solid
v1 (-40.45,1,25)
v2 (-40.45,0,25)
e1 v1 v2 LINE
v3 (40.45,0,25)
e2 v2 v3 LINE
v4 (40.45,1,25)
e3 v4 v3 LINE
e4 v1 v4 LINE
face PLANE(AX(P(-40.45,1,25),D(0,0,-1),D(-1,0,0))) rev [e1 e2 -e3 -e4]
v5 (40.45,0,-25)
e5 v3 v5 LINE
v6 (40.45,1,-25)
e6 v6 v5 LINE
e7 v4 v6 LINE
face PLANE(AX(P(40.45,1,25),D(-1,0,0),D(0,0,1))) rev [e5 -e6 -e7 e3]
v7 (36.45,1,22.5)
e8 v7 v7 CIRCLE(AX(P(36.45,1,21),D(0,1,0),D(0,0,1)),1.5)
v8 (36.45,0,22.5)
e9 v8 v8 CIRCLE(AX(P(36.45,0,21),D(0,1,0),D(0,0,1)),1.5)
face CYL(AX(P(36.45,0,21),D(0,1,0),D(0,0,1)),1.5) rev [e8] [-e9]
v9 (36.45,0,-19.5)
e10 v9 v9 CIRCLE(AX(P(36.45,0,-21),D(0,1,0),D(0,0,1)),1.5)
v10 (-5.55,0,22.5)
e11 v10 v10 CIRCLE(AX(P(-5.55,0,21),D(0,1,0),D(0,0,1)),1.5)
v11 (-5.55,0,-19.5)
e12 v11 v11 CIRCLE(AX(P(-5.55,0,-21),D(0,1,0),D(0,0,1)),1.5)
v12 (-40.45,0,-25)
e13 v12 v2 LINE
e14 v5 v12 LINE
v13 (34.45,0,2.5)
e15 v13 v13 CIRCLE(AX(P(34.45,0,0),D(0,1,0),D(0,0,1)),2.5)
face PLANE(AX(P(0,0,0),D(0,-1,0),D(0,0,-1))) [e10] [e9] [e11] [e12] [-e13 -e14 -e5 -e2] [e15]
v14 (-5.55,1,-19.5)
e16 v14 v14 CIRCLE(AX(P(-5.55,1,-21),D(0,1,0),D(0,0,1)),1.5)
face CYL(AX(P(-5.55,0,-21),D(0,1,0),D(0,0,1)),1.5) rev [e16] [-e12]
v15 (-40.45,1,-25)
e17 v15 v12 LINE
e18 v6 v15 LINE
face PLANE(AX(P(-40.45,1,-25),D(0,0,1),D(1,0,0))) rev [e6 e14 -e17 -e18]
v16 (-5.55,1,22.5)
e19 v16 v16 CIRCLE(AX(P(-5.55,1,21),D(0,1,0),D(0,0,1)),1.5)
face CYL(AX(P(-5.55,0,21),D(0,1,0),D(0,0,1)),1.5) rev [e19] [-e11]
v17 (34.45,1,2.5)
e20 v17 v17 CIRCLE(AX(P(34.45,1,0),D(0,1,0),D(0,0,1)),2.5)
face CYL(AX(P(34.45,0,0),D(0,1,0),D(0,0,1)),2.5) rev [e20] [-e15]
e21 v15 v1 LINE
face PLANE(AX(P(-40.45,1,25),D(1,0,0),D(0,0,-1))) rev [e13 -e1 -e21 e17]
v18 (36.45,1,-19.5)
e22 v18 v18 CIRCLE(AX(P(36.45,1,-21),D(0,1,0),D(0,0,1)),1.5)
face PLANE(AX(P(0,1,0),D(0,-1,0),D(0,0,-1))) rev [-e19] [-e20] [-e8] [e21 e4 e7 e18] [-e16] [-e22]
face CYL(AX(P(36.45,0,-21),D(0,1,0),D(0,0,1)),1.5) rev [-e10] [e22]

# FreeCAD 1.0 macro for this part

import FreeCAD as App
import Part
import Sketcher
from FreeCAD import Vector
Q = App.Units.Quantity


def add_polygon(sketch, points):
    """Adds a closed chain of lines whose ends are joined by coincident constraints."""
    first, n = sketch.GeometryCount, len(points)
    for a, b in zip(points, points[1:] + points[:1]):
        sketch.addGeometry(Part.LineSegment(App.Vector(*a, 0), App.Vector(*b, 0)), False)
    for i in range(n):
        sketch.addConstraint(Sketcher.Constraint("Coincident", first + i, 2, first + (i + 1) % n, 1))

doc = App.newDocument("Part")
body = doc.addObject("PartDesign::Body", "Body")

# Sketch on XZ plane
sketch1 = body.newObject("Sketcher::SketchObject", "Sketch")
sketch1.AttachmentSupport = (doc.getObject("XZ_Plane"), [""])
sketch1.MapMode = "FlatFace"
add_polygon(sketch1, [(-40, -25), (-40, 25), (40, 25), (40, -25)])  # lines 0-3
sketch1.addConstraint([
    Sketcher.Constraint("Vertical", 0),
    Sketcher.Constraint("Horizontal", 1),
    Sketcher.Constraint("Vertical", 2),
    Sketcher.Constraint("Horizontal", 3),
    Sketcher.Constraint("Symmetric", 0, 2, 2, 2, -1, 1),
    Sketcher.Constraint("DistanceY", 0, 1, 0, 2, Q("50 mm")),
    Sketcher.Constraint("DistanceX", 1, 1, 1, 2, Q("80.9 mm")),
])
pad1 = body.newObject("PartDesign::Pad", "Pad")
pad1.Profile = sketch1
pad1.Length = 1
pad1.Reversed = True

# Sketch on XZ plane
sketch2 = body.newObject("Sketcher::SketchObject", "Sketch001")
sketch2.AttachmentSupport = (doc.getObject("XZ_Plane"), [""])
sketch2.MapMode = "FlatFace"
sketch2.AttachmentOffset = App.Placement(Vector(0, 0, -1), App.Rotation())
sketch2.addGeometry([
    Part.Circle(Vector(36.5, -21, 0), Vector(0, 0, 1), 1.5),  # 0
    Part.Circle(Vector(36.5, 21, 0), Vector(0, 0, 1), 1.5),  # 1
    Part.Circle(Vector(-5.5, 21, 0), Vector(0, 0, 1), 1.5),  # 2
    Part.Circle(Vector(-5.5, -21, 0), Vector(0, 0, 1), 1.5),  # 3
    Part.Circle(Vector(34.5, 0, 0), Vector(0, 0, 1), 2.5),  # 4
], False)
sketch2.addConstraint([
    Sketcher.Constraint("Equal", 0, 1),
    Sketcher.Constraint("Equal", 1, 2),
    Sketcher.Constraint("Equal", 2, 3),
    Sketcher.Constraint("Symmetric", 0, 3, 1, 3, -1),
    Sketcher.Constraint("Symmetric", 2, 3, 3, 3, -1),
    Sketcher.Constraint("PointOnObject", 4, 3, -1),
    Sketcher.Constraint("Horizontal", 1, 3, 2, 3),
    Sketcher.Constraint("Diameter", 0, Q("3 mm")),
    Sketcher.Constraint("Diameter", 4, Q("5 mm")),
    Sketcher.Constraint("DistanceY", 0, 3, -1, 1, Q("21 mm")),
    Sketcher.Constraint("DistanceX", 2, 3, 1, 3, Q("42 mm")),
    Sketcher.Constraint("DistanceX", 4, 3, 0, 3, Q("2 mm")),
    Sketcher.Constraint("DistanceX", -1, 1, 0, 3, Q("36.45 mm")),
])
pocket1 = body.newObject("PartDesign::Pocket", "Pocket")
pocket1.Profile = sketch2
pocket1.Type = "ThroughAll"
pocket1.Reversed = True

doc.recompute()
